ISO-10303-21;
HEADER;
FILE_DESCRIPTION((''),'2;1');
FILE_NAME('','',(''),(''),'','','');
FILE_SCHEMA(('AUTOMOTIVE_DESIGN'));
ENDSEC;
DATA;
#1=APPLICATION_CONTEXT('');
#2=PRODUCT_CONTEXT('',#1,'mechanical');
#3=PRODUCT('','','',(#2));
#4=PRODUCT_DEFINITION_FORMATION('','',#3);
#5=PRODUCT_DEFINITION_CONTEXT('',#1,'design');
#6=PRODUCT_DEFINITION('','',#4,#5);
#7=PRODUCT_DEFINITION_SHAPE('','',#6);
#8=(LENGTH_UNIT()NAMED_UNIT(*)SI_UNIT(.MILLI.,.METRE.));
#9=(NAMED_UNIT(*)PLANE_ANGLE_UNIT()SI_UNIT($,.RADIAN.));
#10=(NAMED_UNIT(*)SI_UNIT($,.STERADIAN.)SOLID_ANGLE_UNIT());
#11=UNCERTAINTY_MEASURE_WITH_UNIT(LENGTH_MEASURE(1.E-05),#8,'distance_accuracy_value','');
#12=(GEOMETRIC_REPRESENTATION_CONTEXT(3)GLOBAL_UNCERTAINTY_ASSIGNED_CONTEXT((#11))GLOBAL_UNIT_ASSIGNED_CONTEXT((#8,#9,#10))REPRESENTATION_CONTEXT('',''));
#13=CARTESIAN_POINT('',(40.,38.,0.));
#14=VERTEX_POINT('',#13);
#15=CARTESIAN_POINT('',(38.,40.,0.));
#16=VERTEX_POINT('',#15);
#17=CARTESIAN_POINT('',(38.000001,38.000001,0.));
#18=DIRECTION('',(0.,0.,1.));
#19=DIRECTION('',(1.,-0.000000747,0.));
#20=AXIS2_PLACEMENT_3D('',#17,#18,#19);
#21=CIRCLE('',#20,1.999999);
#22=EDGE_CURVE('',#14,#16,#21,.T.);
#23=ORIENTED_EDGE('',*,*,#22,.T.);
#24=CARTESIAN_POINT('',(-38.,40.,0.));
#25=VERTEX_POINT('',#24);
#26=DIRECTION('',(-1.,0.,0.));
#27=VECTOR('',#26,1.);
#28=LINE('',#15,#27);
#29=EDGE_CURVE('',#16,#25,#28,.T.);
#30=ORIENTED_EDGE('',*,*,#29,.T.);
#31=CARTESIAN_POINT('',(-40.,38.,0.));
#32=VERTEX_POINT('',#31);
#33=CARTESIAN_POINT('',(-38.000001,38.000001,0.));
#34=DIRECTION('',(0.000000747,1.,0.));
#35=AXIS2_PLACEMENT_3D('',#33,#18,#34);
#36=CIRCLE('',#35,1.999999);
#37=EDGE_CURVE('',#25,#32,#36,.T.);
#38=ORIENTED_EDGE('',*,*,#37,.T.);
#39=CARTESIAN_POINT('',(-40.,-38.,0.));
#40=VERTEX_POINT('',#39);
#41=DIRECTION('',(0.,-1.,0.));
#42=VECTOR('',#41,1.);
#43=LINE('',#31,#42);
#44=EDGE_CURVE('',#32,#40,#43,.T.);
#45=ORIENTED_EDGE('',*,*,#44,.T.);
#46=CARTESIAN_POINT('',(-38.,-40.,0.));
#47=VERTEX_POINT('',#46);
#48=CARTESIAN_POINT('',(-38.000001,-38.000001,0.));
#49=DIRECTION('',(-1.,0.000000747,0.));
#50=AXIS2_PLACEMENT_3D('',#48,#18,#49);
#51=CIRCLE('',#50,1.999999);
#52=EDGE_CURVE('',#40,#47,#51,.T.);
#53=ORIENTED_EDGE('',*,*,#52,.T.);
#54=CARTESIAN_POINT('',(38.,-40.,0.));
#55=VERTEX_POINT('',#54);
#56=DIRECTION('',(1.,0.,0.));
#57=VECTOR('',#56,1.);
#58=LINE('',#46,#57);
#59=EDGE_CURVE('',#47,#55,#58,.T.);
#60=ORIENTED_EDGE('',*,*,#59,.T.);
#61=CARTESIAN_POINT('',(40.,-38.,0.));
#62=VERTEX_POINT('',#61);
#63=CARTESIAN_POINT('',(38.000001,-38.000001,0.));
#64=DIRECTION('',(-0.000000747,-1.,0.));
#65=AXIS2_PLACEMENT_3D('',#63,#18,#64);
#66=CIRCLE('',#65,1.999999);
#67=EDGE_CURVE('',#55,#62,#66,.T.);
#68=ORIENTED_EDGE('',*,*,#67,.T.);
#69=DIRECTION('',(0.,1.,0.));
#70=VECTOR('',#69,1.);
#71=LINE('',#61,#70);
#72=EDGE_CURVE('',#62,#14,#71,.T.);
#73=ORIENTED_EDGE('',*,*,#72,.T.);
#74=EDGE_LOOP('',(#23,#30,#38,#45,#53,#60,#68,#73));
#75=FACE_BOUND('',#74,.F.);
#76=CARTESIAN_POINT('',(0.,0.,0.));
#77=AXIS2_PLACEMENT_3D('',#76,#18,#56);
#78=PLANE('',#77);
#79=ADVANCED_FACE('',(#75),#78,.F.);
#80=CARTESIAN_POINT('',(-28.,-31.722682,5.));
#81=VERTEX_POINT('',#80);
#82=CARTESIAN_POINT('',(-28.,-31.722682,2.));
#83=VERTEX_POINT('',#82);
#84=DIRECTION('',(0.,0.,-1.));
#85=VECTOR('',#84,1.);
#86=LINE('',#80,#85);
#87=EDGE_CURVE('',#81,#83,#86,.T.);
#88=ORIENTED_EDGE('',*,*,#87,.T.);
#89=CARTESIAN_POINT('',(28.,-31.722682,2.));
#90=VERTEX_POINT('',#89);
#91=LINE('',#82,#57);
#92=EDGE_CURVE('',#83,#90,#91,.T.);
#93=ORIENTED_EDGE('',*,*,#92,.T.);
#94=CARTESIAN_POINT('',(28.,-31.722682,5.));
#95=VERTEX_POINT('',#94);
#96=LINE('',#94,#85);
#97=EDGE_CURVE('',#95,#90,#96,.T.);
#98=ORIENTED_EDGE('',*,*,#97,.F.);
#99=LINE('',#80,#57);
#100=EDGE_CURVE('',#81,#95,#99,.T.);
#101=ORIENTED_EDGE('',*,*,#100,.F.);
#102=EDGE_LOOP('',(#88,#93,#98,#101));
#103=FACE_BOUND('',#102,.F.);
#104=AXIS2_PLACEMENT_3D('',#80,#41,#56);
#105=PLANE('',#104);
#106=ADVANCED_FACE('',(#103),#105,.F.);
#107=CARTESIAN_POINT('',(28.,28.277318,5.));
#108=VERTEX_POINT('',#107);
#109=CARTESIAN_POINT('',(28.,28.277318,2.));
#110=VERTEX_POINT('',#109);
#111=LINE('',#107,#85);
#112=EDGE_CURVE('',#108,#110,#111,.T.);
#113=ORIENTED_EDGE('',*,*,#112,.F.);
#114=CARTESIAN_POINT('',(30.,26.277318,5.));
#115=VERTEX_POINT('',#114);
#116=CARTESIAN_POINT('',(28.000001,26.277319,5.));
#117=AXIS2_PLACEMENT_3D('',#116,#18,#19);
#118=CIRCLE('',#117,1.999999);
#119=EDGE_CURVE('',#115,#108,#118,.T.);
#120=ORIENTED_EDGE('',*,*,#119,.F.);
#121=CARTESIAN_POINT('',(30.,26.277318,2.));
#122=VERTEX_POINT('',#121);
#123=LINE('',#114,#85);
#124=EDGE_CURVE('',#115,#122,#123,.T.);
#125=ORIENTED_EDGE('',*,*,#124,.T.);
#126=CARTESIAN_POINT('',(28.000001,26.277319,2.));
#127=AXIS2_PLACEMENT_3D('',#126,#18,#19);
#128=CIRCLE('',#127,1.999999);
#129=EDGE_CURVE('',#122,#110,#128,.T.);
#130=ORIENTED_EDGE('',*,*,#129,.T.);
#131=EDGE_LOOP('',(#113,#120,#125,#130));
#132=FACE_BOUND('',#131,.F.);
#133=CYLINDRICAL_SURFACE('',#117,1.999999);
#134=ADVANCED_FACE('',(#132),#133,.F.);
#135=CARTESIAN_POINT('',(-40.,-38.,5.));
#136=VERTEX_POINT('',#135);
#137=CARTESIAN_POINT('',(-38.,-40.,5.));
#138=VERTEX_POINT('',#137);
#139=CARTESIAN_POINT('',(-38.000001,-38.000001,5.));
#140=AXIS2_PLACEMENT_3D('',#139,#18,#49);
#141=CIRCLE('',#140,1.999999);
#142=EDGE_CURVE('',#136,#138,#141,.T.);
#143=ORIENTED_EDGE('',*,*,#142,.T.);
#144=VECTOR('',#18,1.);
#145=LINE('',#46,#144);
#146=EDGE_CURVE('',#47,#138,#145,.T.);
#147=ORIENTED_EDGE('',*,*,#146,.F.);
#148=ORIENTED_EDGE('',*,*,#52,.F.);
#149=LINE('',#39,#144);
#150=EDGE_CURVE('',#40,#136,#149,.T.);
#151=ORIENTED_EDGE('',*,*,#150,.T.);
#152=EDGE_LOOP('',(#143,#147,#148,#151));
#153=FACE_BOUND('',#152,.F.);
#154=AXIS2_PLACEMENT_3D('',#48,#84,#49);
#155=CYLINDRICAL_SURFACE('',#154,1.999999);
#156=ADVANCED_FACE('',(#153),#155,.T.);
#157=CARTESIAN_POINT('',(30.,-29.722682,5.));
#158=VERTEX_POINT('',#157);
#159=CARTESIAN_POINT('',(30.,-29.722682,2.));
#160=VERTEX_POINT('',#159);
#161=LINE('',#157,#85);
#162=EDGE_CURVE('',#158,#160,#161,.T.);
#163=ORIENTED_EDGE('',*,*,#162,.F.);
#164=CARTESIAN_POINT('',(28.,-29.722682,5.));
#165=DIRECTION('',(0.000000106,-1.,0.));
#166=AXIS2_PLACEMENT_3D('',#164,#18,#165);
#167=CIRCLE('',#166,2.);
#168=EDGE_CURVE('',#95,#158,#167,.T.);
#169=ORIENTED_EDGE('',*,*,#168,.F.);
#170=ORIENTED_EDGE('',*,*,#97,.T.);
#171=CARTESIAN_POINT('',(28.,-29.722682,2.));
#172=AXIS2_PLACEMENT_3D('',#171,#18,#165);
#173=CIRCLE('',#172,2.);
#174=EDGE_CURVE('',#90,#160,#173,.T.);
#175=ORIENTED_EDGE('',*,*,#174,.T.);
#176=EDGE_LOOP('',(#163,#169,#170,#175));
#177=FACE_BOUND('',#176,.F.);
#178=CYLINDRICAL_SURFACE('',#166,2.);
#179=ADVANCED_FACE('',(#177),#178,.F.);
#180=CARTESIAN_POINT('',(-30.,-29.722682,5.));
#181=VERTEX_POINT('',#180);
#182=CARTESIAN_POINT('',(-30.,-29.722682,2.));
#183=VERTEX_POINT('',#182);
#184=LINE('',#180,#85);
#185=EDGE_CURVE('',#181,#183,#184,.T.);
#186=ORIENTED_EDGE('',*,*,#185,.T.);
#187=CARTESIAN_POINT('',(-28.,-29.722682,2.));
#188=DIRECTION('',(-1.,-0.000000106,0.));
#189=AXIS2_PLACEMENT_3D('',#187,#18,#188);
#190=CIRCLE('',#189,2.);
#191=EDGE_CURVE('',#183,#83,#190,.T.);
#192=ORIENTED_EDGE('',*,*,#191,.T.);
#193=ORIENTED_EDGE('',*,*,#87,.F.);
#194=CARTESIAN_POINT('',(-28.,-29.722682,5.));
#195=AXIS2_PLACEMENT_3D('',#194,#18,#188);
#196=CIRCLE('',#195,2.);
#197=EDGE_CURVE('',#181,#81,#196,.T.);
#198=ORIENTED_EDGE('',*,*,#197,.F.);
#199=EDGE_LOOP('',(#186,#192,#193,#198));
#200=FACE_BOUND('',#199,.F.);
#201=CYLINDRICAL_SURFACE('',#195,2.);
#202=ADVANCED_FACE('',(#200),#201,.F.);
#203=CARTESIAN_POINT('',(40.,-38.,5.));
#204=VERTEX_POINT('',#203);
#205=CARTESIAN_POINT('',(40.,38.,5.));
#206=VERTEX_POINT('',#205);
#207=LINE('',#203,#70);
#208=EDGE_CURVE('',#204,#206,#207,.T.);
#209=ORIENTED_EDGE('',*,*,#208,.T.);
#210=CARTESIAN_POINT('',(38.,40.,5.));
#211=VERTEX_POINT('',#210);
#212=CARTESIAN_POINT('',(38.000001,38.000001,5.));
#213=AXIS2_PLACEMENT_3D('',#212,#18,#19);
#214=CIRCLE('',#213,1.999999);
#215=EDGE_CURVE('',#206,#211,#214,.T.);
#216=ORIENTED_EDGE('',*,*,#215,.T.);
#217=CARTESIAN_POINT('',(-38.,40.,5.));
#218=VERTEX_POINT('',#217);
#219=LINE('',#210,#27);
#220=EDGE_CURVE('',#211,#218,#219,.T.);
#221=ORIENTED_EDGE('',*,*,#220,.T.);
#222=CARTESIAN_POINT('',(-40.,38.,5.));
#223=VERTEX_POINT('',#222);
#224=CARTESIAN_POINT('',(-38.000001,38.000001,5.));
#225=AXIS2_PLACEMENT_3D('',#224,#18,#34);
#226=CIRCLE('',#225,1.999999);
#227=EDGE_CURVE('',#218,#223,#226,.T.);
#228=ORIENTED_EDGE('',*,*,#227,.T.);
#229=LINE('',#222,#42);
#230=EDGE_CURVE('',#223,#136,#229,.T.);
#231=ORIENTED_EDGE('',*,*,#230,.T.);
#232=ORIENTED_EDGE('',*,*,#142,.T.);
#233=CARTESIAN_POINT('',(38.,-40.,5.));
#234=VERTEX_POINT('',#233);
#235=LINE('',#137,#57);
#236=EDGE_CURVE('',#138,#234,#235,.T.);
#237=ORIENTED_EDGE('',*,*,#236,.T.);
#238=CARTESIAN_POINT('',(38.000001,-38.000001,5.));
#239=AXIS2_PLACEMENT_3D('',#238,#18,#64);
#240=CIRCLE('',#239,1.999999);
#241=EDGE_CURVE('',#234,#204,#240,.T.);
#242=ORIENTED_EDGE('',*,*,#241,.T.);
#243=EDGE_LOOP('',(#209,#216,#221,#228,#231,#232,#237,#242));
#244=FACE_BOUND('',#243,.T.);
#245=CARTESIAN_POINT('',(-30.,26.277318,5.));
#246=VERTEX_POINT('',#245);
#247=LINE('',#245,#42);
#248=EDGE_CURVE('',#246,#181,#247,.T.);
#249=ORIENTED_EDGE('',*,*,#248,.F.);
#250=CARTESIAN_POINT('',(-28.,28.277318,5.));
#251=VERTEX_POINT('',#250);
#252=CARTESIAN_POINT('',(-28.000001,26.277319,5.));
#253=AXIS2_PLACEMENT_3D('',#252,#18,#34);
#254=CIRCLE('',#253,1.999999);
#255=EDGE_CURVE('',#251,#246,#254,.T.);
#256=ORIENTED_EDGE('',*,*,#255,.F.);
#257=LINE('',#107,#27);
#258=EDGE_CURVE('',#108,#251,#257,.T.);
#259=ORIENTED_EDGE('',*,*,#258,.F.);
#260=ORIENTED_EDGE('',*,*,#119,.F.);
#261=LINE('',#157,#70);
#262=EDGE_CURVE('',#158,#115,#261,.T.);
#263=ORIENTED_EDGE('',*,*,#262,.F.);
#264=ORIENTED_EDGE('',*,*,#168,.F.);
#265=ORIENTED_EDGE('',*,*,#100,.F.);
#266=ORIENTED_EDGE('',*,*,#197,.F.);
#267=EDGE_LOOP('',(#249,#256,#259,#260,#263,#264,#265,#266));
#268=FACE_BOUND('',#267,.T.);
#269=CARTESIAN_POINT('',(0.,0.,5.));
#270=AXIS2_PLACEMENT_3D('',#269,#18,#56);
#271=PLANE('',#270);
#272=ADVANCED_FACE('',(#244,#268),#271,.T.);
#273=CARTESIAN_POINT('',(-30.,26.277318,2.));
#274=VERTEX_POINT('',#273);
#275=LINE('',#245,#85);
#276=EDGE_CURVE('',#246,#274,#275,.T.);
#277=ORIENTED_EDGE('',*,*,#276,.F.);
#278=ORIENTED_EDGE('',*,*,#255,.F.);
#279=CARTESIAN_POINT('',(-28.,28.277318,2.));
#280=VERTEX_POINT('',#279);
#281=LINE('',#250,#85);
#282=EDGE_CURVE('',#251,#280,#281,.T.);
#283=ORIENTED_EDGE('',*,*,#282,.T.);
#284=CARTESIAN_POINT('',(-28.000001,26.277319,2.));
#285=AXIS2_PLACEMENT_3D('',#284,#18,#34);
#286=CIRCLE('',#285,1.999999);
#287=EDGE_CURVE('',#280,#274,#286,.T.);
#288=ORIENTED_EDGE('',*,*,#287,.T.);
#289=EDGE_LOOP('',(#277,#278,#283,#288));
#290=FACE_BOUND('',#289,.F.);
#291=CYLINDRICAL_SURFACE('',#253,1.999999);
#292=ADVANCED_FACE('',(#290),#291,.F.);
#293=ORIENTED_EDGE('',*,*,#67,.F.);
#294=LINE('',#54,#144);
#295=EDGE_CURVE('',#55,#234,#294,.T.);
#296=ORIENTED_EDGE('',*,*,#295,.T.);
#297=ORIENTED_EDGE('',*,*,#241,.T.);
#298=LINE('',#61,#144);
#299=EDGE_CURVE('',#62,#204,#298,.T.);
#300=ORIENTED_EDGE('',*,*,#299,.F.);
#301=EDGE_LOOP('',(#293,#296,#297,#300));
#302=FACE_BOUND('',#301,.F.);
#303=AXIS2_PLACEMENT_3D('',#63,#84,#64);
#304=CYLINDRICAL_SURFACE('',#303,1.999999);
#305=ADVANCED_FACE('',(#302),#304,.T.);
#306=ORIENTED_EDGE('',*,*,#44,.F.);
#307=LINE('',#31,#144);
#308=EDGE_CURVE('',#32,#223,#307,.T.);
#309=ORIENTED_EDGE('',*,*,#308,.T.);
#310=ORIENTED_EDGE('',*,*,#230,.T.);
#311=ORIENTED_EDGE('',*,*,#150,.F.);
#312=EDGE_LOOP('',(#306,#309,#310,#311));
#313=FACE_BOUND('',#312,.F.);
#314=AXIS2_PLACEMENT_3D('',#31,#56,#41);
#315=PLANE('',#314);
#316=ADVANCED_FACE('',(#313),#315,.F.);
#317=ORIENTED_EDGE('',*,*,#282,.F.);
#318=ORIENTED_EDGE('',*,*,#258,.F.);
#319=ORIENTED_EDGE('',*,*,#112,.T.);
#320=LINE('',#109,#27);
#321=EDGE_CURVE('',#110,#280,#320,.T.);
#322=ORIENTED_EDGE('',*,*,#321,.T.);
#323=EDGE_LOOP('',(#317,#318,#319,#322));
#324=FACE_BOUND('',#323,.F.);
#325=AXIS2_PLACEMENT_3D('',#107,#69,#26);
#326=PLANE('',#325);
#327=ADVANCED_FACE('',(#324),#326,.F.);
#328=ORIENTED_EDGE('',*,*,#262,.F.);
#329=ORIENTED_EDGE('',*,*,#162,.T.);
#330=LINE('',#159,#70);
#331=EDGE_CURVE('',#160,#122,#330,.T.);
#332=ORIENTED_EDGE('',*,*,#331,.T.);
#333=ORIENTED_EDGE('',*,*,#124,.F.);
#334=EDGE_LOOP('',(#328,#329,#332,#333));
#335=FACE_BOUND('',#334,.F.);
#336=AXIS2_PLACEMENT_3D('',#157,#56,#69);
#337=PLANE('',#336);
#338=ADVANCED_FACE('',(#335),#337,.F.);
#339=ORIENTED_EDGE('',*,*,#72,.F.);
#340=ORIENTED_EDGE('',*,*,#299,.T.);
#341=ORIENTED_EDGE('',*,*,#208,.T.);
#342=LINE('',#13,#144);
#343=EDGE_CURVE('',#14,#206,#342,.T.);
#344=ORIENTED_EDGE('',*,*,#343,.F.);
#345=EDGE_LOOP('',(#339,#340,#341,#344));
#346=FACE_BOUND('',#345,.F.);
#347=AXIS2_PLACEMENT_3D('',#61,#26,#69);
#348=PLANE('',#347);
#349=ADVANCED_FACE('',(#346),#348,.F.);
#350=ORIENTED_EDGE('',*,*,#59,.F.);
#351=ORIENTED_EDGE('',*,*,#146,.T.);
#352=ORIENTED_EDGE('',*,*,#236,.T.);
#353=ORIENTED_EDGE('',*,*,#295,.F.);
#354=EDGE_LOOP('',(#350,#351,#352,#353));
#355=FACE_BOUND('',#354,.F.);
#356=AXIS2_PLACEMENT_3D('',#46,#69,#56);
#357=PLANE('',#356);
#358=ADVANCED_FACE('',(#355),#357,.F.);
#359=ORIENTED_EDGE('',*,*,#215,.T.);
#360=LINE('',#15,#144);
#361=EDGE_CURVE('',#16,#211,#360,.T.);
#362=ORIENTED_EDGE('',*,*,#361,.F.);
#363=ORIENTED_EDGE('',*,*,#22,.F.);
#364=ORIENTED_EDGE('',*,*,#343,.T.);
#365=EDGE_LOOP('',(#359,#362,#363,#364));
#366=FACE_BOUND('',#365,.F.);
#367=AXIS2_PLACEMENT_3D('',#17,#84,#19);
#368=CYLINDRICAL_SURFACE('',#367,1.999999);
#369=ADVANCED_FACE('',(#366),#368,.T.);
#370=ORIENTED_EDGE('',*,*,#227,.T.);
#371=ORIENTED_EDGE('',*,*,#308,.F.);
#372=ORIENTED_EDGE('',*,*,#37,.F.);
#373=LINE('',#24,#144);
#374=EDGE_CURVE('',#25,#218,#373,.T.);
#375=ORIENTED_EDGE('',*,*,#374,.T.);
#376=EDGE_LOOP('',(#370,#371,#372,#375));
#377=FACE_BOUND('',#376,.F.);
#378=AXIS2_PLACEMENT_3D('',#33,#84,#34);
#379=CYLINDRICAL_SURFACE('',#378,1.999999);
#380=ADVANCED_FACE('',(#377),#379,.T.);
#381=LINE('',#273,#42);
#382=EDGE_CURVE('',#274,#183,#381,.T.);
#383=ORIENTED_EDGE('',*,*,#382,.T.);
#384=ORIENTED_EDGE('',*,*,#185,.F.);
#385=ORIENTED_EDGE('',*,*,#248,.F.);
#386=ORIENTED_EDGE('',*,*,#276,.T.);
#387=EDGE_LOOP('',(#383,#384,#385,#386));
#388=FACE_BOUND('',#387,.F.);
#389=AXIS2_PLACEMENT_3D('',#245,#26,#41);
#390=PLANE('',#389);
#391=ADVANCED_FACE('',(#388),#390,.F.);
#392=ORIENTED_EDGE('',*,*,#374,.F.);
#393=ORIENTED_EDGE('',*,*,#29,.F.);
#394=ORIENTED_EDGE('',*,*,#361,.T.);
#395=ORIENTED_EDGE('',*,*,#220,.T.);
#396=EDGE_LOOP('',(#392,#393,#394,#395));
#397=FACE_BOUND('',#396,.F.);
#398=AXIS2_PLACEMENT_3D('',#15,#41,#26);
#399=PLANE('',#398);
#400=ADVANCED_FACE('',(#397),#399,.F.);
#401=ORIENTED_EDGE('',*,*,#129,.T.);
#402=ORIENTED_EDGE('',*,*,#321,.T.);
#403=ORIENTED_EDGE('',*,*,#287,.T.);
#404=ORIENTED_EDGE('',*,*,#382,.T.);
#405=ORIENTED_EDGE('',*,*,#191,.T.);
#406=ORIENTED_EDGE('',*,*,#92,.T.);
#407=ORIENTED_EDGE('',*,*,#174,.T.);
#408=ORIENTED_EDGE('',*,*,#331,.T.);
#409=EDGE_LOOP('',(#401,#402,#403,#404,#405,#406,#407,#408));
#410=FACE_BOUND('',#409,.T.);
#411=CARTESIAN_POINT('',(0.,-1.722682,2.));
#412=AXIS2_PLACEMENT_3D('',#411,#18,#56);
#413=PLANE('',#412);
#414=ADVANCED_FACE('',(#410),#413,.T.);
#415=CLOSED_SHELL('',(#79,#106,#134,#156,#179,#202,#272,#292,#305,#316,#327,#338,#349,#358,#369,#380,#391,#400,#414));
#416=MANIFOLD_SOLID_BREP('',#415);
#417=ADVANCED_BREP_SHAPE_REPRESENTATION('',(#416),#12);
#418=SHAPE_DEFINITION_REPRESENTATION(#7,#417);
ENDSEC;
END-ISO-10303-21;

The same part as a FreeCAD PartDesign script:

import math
import FreeCAD as App
import Part
import Sketcher
from FreeCAD import Vector

doc = App.newDocument("Part")
body = doc.addObject("PartDesign::Body", "Body")

# Sketch on XY plane
sketch1 = body.newObject("Sketcher::SketchObject", "Sketch")
sketch1.AttachmentSupport = (doc.getObject("XY_Plane"), [""])
sketch1.MapMode = "FlatFace"
sketch1.addGeometry(Part.LineSegment(Vector(38, 40, 0), Vector(-38, 40, 0)), False)
sketch1.addGeometry(Part.ArcOfCircle(Part.Circle(Vector(-38, 38, 0), Vector(0, 0, 1), 2), math.radians(90), math.radians(180)), False)
sketch1.addGeometry(Part.LineSegment(Vector(-40, 38, 0), Vector(-40, -38, 0)), False)
sketch1.addGeometry(Part.ArcOfCircle(Part.Circle(Vector(-38, -38, 0), Vector(0, 0, 1), 2), math.radians(180), math.radians(270)), False)
sketch1.addGeometry(Part.LineSegment(Vector(-38, -40, 0), Vector(38, -40, 0)), False)
sketch1.addGeometry(Part.ArcOfCircle(Part.Circle(Vector(38, -38, 0), Vector(0, 0, 1), 2), math.radians(-90), math.radians(0)), False)
sketch1.addGeometry(Part.LineSegment(Vector(40, -38, 0), Vector(40, 38, 0)), False)
sketch1.addGeometry(Part.ArcOfCircle(Part.Circle(Vector(38, 38, 0), Vector(0, 0, 1), 2), math.radians(0), math.radians(90)), False)
sketch1.addConstraint(Sketcher.Constraint("Tangent", 0, 2, 1, 1))
sketch1.addConstraint(Sketcher.Constraint("Tangent", 1, 2, 2, 1))
sketch1.addConstraint(Sketcher.Constraint("Tangent", 2, 2, 3, 1))
sketch1.addConstraint(Sketcher.Constraint("Tangent", 3, 2, 4, 1))
sketch1.addConstraint(Sketcher.Constraint("Tangent", 4, 2, 5, 1))
sketch1.addConstraint(Sketcher.Constraint("Tangent", 5, 2, 6, 1))
sketch1.addConstraint(Sketcher.Constraint("Tangent", 6, 2, 7, 1))
sketch1.addConstraint(Sketcher.Constraint("Tangent", 7, 2, 0, 1))
sketch1.addConstraint(Sketcher.Constraint("Horizontal", 0))
sketch1.addConstraint(Sketcher.Constraint("Vertical", 2))
sketch1.addConstraint(Sketcher.Constraint("Horizontal", 4))
sketch1.addConstraint(Sketcher.Constraint("Vertical", 6))
sketch1.addConstraint(Sketcher.Constraint("Equal", 1, 3))
sketch1.addConstraint(Sketcher.Constraint("Equal", 3, 5))
sketch1.addConstraint(Sketcher.Constraint("Equal", 5, 7))
sketch1.addConstraint(Sketcher.Constraint("Symmetric", 1, 3, 5, 3, -1, 1))
sketch1.addConstraint(Sketcher.Constraint("Equal", 4, 2))
sketch1.addConstraint(Sketcher.Constraint("Radius", 1, 1.999999))
sketch1.addConstraint(Sketcher.Constraint("DistanceX", 0, 2, 0, 1, 76.0))
pad1 = body.newObject("PartDesign::Pad", "Pad")
pad1.Profile = sketch1
pad1.Length = 5

# Sketch on XY plane
sketch2 = body.newObject("Sketcher::SketchObject", "Sketch001")
sketch2.AttachmentSupport = (doc.getObject("XY_Plane"), [""])
sketch2.MapMode = "FlatFace"
sketch2.AttachmentOffset = App.Placement(Vector(0, 0, 5), App.Rotation())
sketch2.addGeometry(Part.LineSegment(Vector(28, 28.3, 0), Vector(-28, 28.3, 0)), False)
sketch2.addGeometry(Part.ArcOfCircle(Part.Circle(Vector(-28, 26.3, 0), Vector(0, 0, 1), 2), math.radians(90), math.radians(180)), False)
sketch2.addGeometry(Part.LineSegment(Vector(-30, 26.3, 0), Vector(-30, -29.7, 0)), False)
sketch2.addGeometry(Part.ArcOfCircle(Part.Circle(Vector(-28, -29.7, 0), Vector(0, 0, 1), 2), math.radians(-180), math.radians(-90)), False)
sketch2.addGeometry(Part.LineSegment(Vector(-28, -31.7, 0), Vector(28, -31.7, 0)), False)
sketch2.addGeometry(Part.ArcOfCircle(Part.Circle(Vector(28, -29.7, 0), Vector(0, 0, 1), 2), math.radians(-90), math.radians(0)), False)
sketch2.addGeometry(Part.LineSegment(Vector(30, -29.7, 0), Vector(30, 26.3, 0)), False)
sketch2.addGeometry(Part.ArcOfCircle(Part.Circle(Vector(28, 26.3, 0), Vector(0, 0, 1), 2), math.radians(0), math.radians(90)), False)
sketch2.addConstraint(Sketcher.Constraint("Tangent", 0, 2, 1, 1))
sketch2.addConstraint(Sketcher.Constraint("Tangent", 1, 2, 2, 1))
sketch2.addConstraint(Sketcher.Constraint("Tangent", 2, 2, 3, 1))
sketch2.addConstraint(Sketcher.Constraint("Tangent", 3, 2, 4, 1))
sketch2.addConstraint(Sketcher.Constraint("Tangent", 4, 2, 5, 1))
sketch2.addConstraint(Sketcher.Constraint("Tangent", 5, 2, 6, 1))
sketch2.addConstraint(Sketcher.Constraint("Tangent", 6, 2, 7, 1))
sketch2.addConstraint(Sketcher.Constraint("Tangent", 7, 2, 0, 1))
sketch2.addConstraint(Sketcher.Constraint("Horizontal", 0))
sketch2.addConstraint(Sketcher.Constraint("Vertical", 2))
sketch2.addConstraint(Sketcher.Constraint("Horizontal", 4))
sketch2.addConstraint(Sketcher.Constraint("Vertical", 6))
sketch2.addConstraint(Sketcher.Constraint("Equal", 1, 3))
sketch2.addConstraint(Sketcher.Constraint("Equal", 3, 5))
sketch2.addConstraint(Sketcher.Constraint("Equal", 5, 7))
sketch2.addConstraint(Sketcher.Constraint("Equal", 4, 2))
sketch2.addConstraint(Sketcher.Constraint("Radius", 1, 1.999999))
sketch2.addConstraint(Sketcher.Constraint("DistanceX", 0, 2, 0, 1, 56.0))
sketch2.addConstraint(Sketcher.Constraint("DistanceX", 1, 3, -1, 1, 28.000001))
sketch2.addConstraint(Sketcher.Constraint("DistanceY", -1, 1, 1, 3, 26.277319))
pocket1 = body.newObject("PartDesign::Pocket", "Pocket")
pocket1.Profile = sketch2
pocket1.Length = 3

doc.recompute()
